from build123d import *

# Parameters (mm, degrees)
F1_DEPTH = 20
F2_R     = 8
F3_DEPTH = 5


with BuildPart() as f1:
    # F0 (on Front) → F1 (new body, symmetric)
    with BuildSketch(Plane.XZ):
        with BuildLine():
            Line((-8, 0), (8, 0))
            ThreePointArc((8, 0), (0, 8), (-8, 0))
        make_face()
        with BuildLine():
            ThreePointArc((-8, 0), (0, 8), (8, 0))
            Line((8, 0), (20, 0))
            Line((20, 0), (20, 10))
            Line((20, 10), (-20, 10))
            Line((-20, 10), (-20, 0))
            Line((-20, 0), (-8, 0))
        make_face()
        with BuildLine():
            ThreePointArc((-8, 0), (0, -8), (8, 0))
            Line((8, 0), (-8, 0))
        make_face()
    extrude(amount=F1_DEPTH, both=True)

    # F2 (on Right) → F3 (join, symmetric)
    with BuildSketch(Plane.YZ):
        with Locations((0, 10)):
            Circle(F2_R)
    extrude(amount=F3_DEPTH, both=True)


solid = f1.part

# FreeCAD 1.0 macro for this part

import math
import FreeCAD as App
import Part
import Sketcher
from FreeCAD import Vector
Q = App.Units.Quantity

doc = App.newDocument("Part")
body = doc.addObject("PartDesign::Body", "Body")

sketch1 = body.newObject("Sketcher::SketchObject", "Sketch")
sketch1.AttachmentSupport = (doc.getObject("XZ_Plane"), [""])
sketch1.MapMode = "FlatFace"
sketch1.addGeometry(Part.LineSegment(Vector(20, 0, 0), Vector(20, 10, 0)), False)
sketch1.addGeometry(Part.LineSegment(Vector(20, 10, 0), Vector(-20, 10, 0)), False)
sketch1.addGeometry(Part.LineSegment(Vector(-20, 10, 0), Vector(-20, 0, 0)), False)
sketch1.addGeometry(Part.LineSegment(Vector(-20, 0, 0), Vector(-8, 0, 0)), False)
sketch1.addGeometry(Part.ArcOfCircle(Part.Circle(Vector(0, 0, 0), Vector(0, 0, 1), 8), math.radians(180), math.radians(360)), False)
sketch1.addGeometry(Part.LineSegment(Vector(8, 0, 0), Vector(20, 0, 0)), False)
sketch1.addConstraint(Sketcher.Constraint("Coincident", 0, 2, 1, 1))
sketch1.addConstraint(Sketcher.Constraint("Coincident", 1, 2, 2, 1))
sketch1.addConstraint(Sketcher.Constraint("Coincident", 2, 2, 3, 1))
sketch1.addConstraint(Sketcher.Constraint("Coincident", 3, 2, 4, 1))
sketch1.addConstraint(Sketcher.Constraint("Coincident", 4, 2, 5, 1))
sketch1.addConstraint(Sketcher.Constraint("Coincident", 5, 2, 0, 1))
sketch1.addConstraint(Sketcher.Constraint("Vertical", 0))
sketch1.addConstraint(Sketcher.Constraint("Horizontal", 1))
sketch1.addConstraint(Sketcher.Constraint("Vertical", 2))
sketch1.addConstraint(Sketcher.Constraint("Horizontal", 3))
sketch1.addConstraint(Sketcher.Constraint("Horizontal", 5))
sketch1.addConstraint(Sketcher.Constraint("Coincident", 4, 3, -1, 1))
sketch1.addConstraint(Sketcher.Constraint("Symmetric", 2, 2, 5, 2, -1, 1))
sketch1.addConstraint(Sketcher.Constraint("PointOnObject", 2, 2, -1))
sketch1.addConstraint(Sketcher.Constraint("Radius", 4, Q("8 mm")))
sketch1.addConstraint(Sketcher.Constraint("DistanceX", 1, 2, 1, 1, Q("40 mm")))
sketch1.addConstraint(Sketcher.Constraint("DistanceY", 0, 1, 0, 2, Q("10 mm")))
pad1 = body.newObject("PartDesign::Pad", "Pad")
pad1.Profile = sketch1
pad1.Length = 40
pad1.Midplane = True

sketch2 = body.newObject("Sketcher::SketchObject", "Sketch001")
sketch2.AttachmentSupport = (doc.getObject("YZ_Plane"), [""])
sketch2.MapMode = "FlatFace"
sketch2.addGeometry(Part.Circle(Vector(0, 10, 0), Vector(0, 0, 1), 8), False)
sketch2.addConstraint(Sketcher.Constraint("PointOnObject", 0, 3, -2))
sketch2.addConstraint(Sketcher.Constraint("Diameter", 0, Q("16 mm")))
sketch2.addConstraint(Sketcher.Constraint("DistanceY", -1, 1, 0, 3, Q("10 mm")))
pad2 = body.newObject("PartDesign::Pad", "Pad001")
pad2.Profile = sketch2
pad2.Length = 10
pad2.Midplane = True

doc.recompute()
